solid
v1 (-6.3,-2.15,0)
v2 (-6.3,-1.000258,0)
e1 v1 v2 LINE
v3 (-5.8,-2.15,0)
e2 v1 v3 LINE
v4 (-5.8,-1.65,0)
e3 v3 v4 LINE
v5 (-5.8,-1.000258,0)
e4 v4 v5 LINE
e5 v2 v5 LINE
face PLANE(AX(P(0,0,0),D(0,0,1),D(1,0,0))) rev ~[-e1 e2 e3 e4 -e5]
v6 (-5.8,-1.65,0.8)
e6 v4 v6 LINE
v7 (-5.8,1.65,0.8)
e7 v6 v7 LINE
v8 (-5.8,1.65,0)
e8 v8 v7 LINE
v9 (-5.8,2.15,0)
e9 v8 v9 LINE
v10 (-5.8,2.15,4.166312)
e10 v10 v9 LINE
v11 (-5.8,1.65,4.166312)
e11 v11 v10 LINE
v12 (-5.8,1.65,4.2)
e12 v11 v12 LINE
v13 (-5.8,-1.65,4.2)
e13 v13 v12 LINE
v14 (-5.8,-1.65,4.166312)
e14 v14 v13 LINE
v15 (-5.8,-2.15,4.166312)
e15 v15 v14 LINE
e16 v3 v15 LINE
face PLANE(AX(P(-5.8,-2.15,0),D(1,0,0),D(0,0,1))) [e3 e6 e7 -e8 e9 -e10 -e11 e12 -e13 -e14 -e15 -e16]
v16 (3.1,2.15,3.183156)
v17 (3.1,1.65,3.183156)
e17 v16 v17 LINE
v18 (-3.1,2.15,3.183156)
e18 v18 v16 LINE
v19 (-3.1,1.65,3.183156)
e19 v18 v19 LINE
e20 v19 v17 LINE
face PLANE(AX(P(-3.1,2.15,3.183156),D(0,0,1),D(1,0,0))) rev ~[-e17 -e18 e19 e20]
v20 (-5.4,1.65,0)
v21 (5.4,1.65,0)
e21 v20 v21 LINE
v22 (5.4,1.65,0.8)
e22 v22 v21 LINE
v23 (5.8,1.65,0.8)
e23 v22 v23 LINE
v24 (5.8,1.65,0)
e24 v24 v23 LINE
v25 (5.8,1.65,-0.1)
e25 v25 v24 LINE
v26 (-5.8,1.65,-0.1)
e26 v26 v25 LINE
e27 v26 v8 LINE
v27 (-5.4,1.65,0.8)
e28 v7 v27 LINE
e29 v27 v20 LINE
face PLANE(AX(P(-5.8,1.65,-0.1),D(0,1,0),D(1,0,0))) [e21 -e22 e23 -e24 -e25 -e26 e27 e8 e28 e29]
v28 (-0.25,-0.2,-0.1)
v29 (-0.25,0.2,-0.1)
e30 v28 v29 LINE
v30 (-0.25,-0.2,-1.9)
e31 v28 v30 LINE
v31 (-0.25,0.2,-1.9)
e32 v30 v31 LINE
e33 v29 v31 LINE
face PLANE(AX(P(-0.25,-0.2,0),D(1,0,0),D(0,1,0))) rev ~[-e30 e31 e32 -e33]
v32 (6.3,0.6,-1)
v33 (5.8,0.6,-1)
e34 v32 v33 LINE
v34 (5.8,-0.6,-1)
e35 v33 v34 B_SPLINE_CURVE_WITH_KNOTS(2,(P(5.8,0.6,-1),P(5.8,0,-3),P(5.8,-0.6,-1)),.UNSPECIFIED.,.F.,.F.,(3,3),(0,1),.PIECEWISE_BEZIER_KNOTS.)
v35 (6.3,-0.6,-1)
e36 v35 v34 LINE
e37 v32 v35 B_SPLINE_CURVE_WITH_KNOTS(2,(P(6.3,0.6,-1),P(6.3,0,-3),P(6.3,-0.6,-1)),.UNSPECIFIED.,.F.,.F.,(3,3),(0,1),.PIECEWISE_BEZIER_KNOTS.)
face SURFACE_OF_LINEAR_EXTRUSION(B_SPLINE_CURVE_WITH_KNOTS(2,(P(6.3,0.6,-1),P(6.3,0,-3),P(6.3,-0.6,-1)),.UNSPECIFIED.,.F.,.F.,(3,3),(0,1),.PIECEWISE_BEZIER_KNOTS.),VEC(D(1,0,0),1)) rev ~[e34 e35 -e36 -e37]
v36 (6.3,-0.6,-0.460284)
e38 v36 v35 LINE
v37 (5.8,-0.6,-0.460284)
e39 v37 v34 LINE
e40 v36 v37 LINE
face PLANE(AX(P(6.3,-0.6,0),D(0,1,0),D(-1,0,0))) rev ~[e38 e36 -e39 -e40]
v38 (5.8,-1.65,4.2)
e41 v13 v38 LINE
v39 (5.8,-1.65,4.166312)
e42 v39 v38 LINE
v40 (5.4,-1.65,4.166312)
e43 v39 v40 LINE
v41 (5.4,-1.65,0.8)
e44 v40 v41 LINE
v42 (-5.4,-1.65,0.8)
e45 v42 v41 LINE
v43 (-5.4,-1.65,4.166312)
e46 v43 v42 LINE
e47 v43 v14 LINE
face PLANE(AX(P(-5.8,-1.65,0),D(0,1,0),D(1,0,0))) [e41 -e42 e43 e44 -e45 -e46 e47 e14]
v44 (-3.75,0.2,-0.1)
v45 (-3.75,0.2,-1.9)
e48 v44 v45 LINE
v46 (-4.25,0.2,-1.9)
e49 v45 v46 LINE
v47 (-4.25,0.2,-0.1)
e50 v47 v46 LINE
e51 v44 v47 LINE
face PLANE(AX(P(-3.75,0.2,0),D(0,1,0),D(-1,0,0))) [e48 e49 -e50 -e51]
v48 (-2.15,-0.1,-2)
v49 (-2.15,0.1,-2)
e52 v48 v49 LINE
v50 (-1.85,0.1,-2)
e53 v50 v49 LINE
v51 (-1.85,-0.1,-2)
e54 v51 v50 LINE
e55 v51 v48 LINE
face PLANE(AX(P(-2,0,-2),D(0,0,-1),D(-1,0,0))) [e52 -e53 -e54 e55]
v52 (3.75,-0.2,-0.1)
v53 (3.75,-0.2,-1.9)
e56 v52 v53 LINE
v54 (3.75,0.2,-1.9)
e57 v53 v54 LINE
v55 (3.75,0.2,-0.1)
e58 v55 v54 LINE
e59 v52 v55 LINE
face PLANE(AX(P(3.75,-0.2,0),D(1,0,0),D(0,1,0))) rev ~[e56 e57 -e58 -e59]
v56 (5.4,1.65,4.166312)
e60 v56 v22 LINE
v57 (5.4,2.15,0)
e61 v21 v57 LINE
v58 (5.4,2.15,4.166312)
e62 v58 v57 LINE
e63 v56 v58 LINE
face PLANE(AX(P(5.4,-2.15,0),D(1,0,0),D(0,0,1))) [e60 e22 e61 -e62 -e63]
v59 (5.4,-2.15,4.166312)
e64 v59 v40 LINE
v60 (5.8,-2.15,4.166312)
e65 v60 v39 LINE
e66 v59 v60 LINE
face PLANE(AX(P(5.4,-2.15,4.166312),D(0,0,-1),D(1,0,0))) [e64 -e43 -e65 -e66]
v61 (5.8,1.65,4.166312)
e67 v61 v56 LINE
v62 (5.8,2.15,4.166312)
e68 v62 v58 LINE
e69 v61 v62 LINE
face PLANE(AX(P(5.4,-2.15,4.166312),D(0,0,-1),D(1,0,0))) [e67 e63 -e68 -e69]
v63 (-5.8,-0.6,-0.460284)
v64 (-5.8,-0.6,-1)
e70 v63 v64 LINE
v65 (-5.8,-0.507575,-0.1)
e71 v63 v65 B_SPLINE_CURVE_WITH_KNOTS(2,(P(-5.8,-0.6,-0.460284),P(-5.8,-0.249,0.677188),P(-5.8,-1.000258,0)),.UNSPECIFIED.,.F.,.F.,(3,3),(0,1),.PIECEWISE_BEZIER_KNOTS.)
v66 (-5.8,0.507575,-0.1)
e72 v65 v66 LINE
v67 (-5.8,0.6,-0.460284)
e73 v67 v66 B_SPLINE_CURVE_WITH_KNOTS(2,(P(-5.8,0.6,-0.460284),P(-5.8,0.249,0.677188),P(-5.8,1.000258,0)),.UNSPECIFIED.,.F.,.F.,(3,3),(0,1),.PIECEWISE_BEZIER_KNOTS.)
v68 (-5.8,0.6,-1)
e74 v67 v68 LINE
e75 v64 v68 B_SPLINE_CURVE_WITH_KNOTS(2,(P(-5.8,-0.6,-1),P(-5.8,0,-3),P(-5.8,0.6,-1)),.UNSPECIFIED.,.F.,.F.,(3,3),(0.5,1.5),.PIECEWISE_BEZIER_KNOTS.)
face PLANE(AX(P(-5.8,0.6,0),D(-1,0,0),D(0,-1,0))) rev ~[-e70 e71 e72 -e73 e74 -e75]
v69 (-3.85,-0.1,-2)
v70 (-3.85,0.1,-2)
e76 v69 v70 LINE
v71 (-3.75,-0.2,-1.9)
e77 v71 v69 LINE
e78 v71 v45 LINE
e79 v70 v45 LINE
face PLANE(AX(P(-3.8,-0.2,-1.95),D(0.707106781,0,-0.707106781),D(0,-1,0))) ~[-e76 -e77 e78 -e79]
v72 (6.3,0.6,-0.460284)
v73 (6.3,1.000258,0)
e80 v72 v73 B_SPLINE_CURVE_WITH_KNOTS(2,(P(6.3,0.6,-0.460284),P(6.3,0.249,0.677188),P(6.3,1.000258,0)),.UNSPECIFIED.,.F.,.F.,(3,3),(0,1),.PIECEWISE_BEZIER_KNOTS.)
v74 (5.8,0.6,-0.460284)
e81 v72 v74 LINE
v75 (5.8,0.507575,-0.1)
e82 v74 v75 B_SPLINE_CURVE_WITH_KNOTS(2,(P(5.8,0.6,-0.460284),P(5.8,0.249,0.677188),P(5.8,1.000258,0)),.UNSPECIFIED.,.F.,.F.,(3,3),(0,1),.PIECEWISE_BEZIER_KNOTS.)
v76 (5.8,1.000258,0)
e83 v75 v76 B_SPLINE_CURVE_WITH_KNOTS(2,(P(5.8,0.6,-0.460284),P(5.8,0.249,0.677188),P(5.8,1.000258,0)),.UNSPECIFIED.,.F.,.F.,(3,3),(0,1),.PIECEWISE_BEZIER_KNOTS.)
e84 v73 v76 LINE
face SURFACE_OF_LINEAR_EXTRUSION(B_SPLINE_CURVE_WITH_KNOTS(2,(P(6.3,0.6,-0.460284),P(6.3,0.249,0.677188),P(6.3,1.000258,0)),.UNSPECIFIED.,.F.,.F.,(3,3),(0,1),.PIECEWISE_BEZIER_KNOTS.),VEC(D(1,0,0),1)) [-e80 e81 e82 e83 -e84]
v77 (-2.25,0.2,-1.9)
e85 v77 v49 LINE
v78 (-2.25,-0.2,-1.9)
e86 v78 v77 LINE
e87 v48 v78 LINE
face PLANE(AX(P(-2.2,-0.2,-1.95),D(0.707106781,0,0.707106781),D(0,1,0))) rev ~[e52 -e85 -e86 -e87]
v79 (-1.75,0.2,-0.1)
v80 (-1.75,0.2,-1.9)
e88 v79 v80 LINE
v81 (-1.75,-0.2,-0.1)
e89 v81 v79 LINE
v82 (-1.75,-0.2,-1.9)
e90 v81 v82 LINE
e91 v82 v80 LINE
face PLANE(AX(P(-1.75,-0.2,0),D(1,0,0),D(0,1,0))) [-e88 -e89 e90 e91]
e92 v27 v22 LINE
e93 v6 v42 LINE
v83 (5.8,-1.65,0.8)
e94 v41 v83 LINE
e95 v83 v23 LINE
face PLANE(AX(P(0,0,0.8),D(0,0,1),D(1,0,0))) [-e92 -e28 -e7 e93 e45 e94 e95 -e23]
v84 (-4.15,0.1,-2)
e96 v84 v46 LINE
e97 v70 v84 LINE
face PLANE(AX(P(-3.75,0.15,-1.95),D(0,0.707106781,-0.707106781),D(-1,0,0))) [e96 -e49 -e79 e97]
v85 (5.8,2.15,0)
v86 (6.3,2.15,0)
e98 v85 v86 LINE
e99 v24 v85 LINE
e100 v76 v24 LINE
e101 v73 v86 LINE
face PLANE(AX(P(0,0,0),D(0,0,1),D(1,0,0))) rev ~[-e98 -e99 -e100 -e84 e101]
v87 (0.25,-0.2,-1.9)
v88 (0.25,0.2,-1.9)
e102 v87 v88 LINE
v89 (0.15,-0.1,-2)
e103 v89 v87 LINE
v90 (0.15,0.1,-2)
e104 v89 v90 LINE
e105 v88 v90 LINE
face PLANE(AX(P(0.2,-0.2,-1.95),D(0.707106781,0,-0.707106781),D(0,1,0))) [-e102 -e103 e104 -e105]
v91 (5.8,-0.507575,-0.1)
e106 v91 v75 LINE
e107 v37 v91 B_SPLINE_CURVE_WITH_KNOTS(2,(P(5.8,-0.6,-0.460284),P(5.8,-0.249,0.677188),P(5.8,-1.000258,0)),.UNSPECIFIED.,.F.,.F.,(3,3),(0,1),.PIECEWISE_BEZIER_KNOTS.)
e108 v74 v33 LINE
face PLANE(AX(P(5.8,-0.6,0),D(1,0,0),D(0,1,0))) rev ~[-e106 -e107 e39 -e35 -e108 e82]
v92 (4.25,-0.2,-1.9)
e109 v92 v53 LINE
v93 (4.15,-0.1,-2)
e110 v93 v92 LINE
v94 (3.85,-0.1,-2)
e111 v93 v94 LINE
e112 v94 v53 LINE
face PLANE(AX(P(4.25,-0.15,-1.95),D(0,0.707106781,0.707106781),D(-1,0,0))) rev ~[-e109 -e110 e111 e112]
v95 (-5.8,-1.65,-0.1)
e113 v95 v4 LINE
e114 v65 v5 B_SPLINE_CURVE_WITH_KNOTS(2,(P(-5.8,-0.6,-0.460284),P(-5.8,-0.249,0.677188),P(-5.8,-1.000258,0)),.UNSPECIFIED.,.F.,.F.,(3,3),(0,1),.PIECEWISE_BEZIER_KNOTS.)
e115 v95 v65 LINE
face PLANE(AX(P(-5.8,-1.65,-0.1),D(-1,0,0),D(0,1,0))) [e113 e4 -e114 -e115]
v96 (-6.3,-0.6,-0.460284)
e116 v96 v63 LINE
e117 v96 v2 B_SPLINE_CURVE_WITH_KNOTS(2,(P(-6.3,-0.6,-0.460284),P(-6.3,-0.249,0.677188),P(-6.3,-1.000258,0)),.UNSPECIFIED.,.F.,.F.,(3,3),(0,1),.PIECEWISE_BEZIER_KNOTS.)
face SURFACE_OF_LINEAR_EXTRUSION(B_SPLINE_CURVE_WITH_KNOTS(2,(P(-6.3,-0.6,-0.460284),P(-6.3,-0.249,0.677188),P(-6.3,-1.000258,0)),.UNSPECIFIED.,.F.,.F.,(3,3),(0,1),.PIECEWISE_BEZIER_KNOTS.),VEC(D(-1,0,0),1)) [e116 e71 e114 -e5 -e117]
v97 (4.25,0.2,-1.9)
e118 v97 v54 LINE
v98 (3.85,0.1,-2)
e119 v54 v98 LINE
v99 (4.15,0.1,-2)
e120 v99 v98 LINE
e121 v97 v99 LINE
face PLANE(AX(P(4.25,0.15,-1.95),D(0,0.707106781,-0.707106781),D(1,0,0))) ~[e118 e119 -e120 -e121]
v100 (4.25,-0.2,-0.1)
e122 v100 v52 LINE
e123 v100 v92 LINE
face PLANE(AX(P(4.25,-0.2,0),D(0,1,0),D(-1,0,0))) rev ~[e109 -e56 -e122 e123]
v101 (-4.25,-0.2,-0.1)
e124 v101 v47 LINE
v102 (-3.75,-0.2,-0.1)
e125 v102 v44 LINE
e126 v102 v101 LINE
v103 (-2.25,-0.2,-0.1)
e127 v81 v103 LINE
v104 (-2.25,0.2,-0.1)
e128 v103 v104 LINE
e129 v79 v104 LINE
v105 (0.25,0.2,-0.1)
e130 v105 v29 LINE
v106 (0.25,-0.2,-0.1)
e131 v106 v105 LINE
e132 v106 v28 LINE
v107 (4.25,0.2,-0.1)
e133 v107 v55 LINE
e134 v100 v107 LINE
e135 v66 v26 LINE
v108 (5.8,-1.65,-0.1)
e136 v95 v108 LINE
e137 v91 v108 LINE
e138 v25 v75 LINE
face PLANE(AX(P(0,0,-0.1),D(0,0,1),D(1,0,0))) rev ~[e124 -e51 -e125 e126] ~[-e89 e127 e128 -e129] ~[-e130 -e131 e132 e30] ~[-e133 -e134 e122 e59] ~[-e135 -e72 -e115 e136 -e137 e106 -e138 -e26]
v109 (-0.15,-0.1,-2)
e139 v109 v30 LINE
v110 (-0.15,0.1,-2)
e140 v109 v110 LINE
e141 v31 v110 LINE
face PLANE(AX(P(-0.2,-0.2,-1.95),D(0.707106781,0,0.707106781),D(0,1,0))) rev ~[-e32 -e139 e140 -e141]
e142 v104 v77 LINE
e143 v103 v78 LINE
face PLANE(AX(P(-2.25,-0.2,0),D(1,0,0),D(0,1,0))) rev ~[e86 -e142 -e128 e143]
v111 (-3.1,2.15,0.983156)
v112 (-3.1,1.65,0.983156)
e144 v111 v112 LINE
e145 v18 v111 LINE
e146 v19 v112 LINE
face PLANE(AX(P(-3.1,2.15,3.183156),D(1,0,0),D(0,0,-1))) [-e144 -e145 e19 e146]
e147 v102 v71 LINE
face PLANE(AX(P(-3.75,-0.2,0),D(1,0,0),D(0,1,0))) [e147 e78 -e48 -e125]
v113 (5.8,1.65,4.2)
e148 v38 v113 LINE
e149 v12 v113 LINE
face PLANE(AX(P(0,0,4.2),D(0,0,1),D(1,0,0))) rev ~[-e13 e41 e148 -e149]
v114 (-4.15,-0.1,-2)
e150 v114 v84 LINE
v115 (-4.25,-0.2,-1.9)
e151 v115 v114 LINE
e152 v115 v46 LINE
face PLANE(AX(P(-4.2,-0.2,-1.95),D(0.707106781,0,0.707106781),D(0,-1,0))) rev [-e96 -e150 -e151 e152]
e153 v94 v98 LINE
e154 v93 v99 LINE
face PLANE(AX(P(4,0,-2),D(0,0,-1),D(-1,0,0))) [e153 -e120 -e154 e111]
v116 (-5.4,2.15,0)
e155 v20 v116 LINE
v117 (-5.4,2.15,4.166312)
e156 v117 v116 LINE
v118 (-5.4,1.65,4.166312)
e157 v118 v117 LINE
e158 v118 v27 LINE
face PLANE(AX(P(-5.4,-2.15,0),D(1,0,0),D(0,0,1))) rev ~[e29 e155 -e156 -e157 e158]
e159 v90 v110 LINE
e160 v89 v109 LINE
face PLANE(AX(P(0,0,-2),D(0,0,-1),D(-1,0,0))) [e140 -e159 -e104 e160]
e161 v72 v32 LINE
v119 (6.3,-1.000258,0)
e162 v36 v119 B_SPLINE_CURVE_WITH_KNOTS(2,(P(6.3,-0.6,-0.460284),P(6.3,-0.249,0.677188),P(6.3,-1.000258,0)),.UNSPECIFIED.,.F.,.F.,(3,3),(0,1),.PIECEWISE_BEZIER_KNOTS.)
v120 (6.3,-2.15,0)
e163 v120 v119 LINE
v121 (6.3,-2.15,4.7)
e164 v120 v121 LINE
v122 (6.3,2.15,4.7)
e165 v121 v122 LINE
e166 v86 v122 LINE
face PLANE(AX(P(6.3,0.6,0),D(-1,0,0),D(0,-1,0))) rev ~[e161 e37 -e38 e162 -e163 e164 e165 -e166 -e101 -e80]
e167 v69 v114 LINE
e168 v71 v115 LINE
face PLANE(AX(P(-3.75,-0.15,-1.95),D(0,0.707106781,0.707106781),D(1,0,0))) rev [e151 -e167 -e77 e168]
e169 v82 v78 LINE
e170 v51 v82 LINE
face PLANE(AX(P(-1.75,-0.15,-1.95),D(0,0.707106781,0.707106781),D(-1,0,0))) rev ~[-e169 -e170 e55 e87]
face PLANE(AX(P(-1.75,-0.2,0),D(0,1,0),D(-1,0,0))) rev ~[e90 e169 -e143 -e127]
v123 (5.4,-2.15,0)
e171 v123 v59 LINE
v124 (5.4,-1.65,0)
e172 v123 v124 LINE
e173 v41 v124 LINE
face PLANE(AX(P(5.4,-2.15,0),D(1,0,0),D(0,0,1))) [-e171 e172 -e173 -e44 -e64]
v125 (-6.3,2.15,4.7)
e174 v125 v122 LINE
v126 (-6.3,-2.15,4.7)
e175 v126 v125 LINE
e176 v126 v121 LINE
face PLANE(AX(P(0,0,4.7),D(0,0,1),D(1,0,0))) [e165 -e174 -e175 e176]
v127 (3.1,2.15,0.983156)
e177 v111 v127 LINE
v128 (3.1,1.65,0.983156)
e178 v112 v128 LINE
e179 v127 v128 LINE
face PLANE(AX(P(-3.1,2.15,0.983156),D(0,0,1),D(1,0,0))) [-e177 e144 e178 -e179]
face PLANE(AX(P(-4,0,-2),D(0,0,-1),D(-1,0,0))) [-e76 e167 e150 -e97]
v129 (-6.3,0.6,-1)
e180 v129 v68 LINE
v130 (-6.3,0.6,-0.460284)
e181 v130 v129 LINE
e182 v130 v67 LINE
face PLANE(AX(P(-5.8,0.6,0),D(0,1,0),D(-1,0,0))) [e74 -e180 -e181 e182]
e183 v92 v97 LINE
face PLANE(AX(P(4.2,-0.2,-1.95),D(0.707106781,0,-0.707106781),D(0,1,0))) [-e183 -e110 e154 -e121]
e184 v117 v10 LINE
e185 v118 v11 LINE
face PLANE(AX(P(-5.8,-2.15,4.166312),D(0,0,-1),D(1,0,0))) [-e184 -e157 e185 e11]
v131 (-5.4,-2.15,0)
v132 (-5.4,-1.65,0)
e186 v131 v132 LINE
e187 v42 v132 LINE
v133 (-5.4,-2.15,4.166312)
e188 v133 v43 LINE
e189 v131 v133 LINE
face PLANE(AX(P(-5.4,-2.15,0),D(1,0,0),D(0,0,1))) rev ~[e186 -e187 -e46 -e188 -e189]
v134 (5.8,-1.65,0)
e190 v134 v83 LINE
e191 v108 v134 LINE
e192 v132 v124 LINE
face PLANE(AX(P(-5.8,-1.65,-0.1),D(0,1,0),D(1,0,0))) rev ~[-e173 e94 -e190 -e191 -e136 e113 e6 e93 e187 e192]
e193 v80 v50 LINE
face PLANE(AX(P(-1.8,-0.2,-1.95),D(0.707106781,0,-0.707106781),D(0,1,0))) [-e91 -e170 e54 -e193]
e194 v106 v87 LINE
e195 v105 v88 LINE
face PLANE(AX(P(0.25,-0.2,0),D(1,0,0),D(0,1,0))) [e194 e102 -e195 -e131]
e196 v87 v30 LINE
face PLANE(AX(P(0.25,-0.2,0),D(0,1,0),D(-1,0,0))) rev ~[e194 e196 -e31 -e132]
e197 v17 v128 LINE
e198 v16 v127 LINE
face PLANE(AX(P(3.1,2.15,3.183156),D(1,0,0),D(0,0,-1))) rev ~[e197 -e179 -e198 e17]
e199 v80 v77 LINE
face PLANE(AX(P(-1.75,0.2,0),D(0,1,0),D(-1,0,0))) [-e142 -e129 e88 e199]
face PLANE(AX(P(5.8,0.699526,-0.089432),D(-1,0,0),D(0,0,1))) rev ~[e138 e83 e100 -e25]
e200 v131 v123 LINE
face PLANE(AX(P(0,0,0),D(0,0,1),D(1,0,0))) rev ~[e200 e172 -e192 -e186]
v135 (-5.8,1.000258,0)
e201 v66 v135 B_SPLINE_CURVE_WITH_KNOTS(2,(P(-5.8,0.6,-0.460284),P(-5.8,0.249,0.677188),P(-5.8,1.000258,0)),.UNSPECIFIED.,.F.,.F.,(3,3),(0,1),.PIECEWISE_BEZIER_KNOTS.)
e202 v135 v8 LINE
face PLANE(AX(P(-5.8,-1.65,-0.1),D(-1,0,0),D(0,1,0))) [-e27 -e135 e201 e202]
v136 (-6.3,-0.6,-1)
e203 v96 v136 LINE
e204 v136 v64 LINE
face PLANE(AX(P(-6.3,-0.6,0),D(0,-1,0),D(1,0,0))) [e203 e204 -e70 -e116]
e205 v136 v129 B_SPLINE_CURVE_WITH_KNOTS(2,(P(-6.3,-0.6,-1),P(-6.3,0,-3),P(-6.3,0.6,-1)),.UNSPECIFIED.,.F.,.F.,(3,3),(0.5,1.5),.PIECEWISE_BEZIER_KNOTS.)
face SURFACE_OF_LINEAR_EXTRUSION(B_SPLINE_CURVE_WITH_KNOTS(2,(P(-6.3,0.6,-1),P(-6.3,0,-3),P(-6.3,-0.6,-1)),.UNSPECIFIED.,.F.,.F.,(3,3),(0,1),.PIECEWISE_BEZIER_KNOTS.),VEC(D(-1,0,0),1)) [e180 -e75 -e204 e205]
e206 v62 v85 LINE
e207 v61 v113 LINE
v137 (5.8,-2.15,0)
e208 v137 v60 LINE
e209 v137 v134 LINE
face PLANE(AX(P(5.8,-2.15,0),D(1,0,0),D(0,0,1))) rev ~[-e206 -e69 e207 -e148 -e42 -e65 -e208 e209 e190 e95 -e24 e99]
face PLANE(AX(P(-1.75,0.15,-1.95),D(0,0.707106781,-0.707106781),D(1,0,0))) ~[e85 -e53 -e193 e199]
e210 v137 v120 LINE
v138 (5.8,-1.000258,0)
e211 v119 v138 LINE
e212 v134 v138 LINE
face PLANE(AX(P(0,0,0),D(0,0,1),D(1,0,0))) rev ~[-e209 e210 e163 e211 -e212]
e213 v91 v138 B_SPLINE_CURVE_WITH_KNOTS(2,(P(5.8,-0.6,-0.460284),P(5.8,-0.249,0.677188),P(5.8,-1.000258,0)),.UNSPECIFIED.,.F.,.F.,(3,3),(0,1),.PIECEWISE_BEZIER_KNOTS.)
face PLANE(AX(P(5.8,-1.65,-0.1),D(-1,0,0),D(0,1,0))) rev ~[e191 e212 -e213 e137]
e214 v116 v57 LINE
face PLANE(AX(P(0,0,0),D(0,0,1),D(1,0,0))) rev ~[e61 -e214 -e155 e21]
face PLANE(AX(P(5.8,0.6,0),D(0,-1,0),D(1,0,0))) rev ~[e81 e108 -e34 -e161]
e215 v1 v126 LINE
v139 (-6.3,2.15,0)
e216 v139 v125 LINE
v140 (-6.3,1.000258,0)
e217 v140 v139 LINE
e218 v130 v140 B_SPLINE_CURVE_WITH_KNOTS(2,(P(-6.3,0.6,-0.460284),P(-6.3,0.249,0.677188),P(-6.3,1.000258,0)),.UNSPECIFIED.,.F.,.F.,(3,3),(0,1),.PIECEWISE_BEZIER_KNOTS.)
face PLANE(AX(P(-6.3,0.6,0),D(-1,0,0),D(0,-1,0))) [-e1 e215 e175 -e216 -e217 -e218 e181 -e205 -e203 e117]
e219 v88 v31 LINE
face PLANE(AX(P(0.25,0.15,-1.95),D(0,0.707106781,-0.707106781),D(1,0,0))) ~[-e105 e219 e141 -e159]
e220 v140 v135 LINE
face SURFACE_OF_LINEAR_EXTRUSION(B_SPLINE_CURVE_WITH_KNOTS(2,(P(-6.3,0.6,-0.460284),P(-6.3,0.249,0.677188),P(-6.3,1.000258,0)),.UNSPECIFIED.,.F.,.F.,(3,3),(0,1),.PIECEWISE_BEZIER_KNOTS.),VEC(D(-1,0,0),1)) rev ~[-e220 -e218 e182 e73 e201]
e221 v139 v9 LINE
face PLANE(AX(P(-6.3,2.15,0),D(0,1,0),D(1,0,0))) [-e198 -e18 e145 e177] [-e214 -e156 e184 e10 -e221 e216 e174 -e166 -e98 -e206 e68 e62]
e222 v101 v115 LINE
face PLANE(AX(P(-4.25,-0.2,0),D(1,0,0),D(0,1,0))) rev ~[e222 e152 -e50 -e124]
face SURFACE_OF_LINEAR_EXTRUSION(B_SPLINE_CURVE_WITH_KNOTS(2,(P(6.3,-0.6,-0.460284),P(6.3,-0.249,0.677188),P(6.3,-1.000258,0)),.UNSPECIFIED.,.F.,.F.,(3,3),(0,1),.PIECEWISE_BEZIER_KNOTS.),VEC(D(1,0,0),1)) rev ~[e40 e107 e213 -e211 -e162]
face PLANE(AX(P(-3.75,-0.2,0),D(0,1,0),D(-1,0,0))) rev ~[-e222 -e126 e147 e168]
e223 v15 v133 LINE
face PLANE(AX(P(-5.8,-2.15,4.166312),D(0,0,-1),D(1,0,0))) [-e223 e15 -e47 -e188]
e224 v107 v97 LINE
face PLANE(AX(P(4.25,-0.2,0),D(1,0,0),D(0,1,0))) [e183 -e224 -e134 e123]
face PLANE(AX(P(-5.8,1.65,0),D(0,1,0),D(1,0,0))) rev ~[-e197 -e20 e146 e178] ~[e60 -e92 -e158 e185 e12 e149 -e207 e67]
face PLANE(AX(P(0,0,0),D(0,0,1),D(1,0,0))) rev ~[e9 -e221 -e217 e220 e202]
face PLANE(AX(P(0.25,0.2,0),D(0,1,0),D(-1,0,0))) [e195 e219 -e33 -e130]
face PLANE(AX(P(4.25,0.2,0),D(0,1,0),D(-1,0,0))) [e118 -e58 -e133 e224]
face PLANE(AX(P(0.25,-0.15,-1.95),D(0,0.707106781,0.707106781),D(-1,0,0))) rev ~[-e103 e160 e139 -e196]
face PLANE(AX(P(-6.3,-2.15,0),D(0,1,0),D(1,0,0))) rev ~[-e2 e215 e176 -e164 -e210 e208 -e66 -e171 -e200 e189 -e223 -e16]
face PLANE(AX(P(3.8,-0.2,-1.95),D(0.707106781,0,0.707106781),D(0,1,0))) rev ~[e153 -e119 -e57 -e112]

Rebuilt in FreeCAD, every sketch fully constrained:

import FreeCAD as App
import Part
import Sketcher

V = App.Vector
Q = App.Units.Quantity


def edges_at(feature, points):
    """Names of the edges that pass closest to the given points."""
    edges = feature.Shape.Edges
    near = lambda p: min(range(len(edges)), key=lambda i: edges[i].distToShape(Part.Vertex(*p))[0])
    return sorted({f"Edge{near(p) + 1}" for p in points})

doc = App.newDocument("Part")
body = doc.addObject("PartDesign::Body", "Body")

# Sketch on XY plane
sketch1 = body.newObject("Sketcher::SketchObject", "Sketch")
sketch1.AttachmentSupport = (doc.getObject("XY_Plane"), [""])
sketch1.MapMode = "FlatFace"
sketch1.addGeometry(Part.LineSegment(V(-6.3, 2.1, 0), V(-6.3, -2.1, 0)), False)
sketch1.addGeometry(Part.LineSegment(V(-6.3, -2.1, 0), V(6.3, -2.1, 0)), False)
sketch1.addGeometry(Part.LineSegment(V(6.3, -2.1, 0), V(6.3, 2.1, 0)), False)
sketch1.addGeometry(Part.LineSegment(V(6.3, 2.1, 0), V(-6.3, 2.1, 0)), False)
sketch1.addGeometry(Part.LineSegment(V(5.8, -1.6, 0), V(-5.8, -1.6, 0)), False)
sketch1.addGeometry(Part.LineSegment(V(-5.8, -1.6, 0), V(-5.8, 1.6, 0)), False)
sketch1.addGeometry(Part.LineSegment(V(-5.8, 1.6, 0), V(5.8, 1.6, 0)), False)
sketch1.addGeometry(Part.LineSegment(V(5.8, 1.6, 0), V(5.8, -1.6, 0)), False)
sketch1.addConstraint(Sketcher.Constraint("Coincident", 0, 2, 1, 1))
sketch1.addConstraint(Sketcher.Constraint("Coincident", 1, 2, 2, 1))
sketch1.addConstraint(Sketcher.Constraint("Coincident", 2, 2, 3, 1))
sketch1.addConstraint(Sketcher.Constraint("Coincident", 3, 2, 0, 1))
sketch1.addConstraint(Sketcher.Constraint("Coincident", 4, 2, 5, 1))
sketch1.addConstraint(Sketcher.Constraint("Coincident", 5, 2, 6, 1))
sketch1.addConstraint(Sketcher.Constraint("Coincident", 6, 2, 7, 1))
sketch1.addConstraint(Sketcher.Constraint("Coincident", 7, 2, 4, 1))
sketch1.addConstraint(Sketcher.Constraint("Vertical", 0))
sketch1.addConstraint(Sketcher.Constraint("Horizontal", 1))
sketch1.addConstraint(Sketcher.Constraint("Vertical", 2))
sketch1.addConstraint(Sketcher.Constraint("Horizontal", 3))
sketch1.addConstraint(Sketcher.Constraint("Horizontal", 4))
sketch1.addConstraint(Sketcher.Constraint("Vertical", 5))
sketch1.addConstraint(Sketcher.Constraint("Horizontal", 6))
sketch1.addConstraint(Sketcher.Constraint("Vertical", 7))
sketch1.addConstraint(Sketcher.Constraint("Symmetric", 0, 2, 2, 2, -1, 1))
sketch1.addConstraint(Sketcher.Constraint("Symmetric", 4, 2, 6, 2, -1, 1))
sketch1.addConstraint(Sketcher.Constraint("DistanceX", 1, 1, 1, 2, Q("12.6 mm")))
sketch1.addConstraint(Sketcher.Constraint("DistanceX", 4, 2, 4, 1, Q("11.6 mm")))
sketch1.addConstraint(Sketcher.Constraint("DistanceY", 0, 2, 0, 1, Q("4.3 mm")))
sketch1.addConstraint(Sketcher.Constraint("DistanceY", 5, 1, 5, 2, Q("3.3 mm")))
pad1 = body.newObject("PartDesign::Pad", "Pad")
pad1.Profile = sketch1
pad1.Length = 4.7

# Sketch on XY plane
sketch2 = body.newObject("Sketcher::SketchObject", "Sketch001")
sketch2.AttachmentSupport = (doc.getObject("XY_Plane"), [""])
sketch2.MapMode = "FlatFace"
sketch2.AttachmentOffset = App.Placement(V(0, 0, 4.7), App.Rotation())
sketch2.addGeometry(Part.LineSegment(V(-5.8, 1.6, 0), V(-5.8, -1.6, 0)), False)
sketch2.addGeometry(Part.LineSegment(V(-5.8, -1.6, 0), V(5.8, -1.6, 0)), False)
sketch2.addGeometry(Part.LineSegment(V(5.8, -1.6, 0), V(5.8, 1.6, 0)), False)
sketch2.addGeometry(Part.LineSegment(V(5.8, 1.6, 0), V(-5.8, 1.6, 0)), False)
sketch2.addConstraint(Sketcher.Constraint("Coincident", 0, 2, 1, 1))
sketch2.addConstraint(Sketcher.Constraint("Coincident", 1, 2, 2, 1))
sketch2.addConstraint(Sketcher.Constraint("Coincident", 2, 2, 3, 1))
sketch2.addConstraint(Sketcher.Constraint("Coincident", 3, 2, 0, 1))
sketch2.addConstraint(Sketcher.Constraint("Vertical", 0))
sketch2.addConstraint(Sketcher.Constraint("Horizontal", 1))
sketch2.addConstraint(Sketcher.Constraint("Vertical", 2))
sketch2.addConstraint(Sketcher.Constraint("Horizontal", 3))
sketch2.addConstraint(Sketcher.Constraint("Symmetric", 0, 2, 2, 2, -1, 1))
sketch2.addConstraint(Sketcher.Constraint("DistanceX", 1, 1, 1, 2, Q("11.6 mm")))
sketch2.addConstraint(Sketcher.Constraint("DistanceY", 0, 2, 0, 1, Q("3.3 mm")))
pad2 = body.newObject("PartDesign::Pad", "Pad001")
pad2.Profile = sketch2
pad2.Length = 0.5
pad2.Reversed = True

# Sketch on XZ plane
sketch3 = body.newObject("Sketcher::SketchObject", "Sketch002")
sketch3.AttachmentSupport = (doc.getObject("XZ_Plane"), [""])
sketch3.MapMode = "FlatFace"
sketch3.AttachmentOffset = App.Placement(V(0, 0, 2.15), App.Rotation())
sketch3.addGeometry(Part.LineSegment(V(-5.8, 4.17, 0), V(-5.8, 0, 0)), False)
sketch3.addGeometry(Part.LineSegment(V(-5.8, 0, 0), V(-5.4, 0, 0)), False)
sketch3.addGeometry(Part.LineSegment(V(-5.4, 0, 0), V(-5.4, 4.17, 0)), False)
sketch3.addGeometry(Part.LineSegment(V(-5.4, 4.17, 0), V(-5.8, 4.17, 0)), False)
sketch3.addGeometry(Part.LineSegment(V(5.4, 4.17, 0), V(5.4, 0, 0)), False)
sketch3.addGeometry(Part.LineSegment(V(5.4, 0, 0), V(5.8, 0, 0)), False)
sketch3.addGeometry(Part.LineSegment(V(5.8, 0, 0), V(5.8, 4.17, 0)), False)
sketch3.addGeometry(Part.LineSegment(V(5.8, 4.17, 0), V(5.4, 4.17, 0)), False)
sketch3.addConstraint(Sketcher.Constraint("Coincident", 0, 2, 1, 1))
sketch3.addConstraint(Sketcher.Constraint("Coincident", 1, 2, 2, 1))
sketch3.addConstraint(Sketcher.Constraint("Coincident", 2, 2, 3, 1))
sketch3.addConstraint(Sketcher.Constraint("Coincident", 3, 2, 0, 1))
sketch3.addConstraint(Sketcher.Constraint("Coincident", 4, 2, 5, 1))
sketch3.addConstraint(Sketcher.Constraint("Coincident", 5, 2, 6, 1))
sketch3.addConstraint(Sketcher.Constraint("Coincident", 6, 2, 7, 1))
sketch3.addConstraint(Sketcher.Constraint("Coincident", 7, 2, 4, 1))
sketch3.addConstraint(Sketcher.Constraint("Vertical", 0))
sketch3.addConstraint(Sketcher.Constraint("Horizontal", 1))
sketch3.addConstraint(Sketcher.Constraint("Vertical", 2))
sketch3.addConstraint(Sketcher.Constraint("Horizontal", 3))
sketch3.addConstraint(Sketcher.Constraint("Vertical", 4))
sketch3.addConstraint(Sketcher.Constraint("Horizontal", 5))
sketch3.addConstraint(Sketcher.Constraint("Vertical", 6))
sketch3.addConstraint(Sketcher.Constraint("Horizontal", 7))
sketch3.addConstraint(Sketcher.Constraint("Symmetric", 1, 2, 4, 2, -1, 1))
sketch3.addConstraint(Sketcher.Constraint("Symmetric", 0, 2, 5, 2, -2))
sketch3.addConstraint(Sketcher.Constraint("Horizontal", 3, 2, 6, 2))
sketch3.addConstraint(Sketcher.Constraint("DistanceX", 1, 1, 1, 2, Q("0.4 mm")))
sketch3.addConstraint(Sketcher.Constraint("DistanceX", 0, 2, -1, 1, Q("5.8 mm")))
sketch3.addConstraint(Sketcher.Constraint("DistanceY", 0, 2, 0, 1, Q("4.166312 mm")))
pocket1 = body.newObject("PartDesign::Pocket", "Pocket")
pocket1.Profile = sketch3
pocket1.Type = "ThroughAll"
body2 = doc.addObject("PartDesign::Body", "Body001")

# Sketch on XY plane
sketch4 = body2.newObject("Sketcher::SketchObject", "Sketch003")
sketch4.AttachmentSupport = (doc.getObject("XY_Plane001"), [""])
sketch4.MapMode = "FlatFace"
sketch4.addGeometry(Part.LineSegment(V(-5.8, 1.6, 0), V(-5.8, -1.6, 0)), False)
sketch4.addGeometry(Part.LineSegment(V(-5.8, -1.6, 0), V(5.8, -1.6, 0)), False)
sketch4.addGeometry(Part.LineSegment(V(5.8, -1.6, 0), V(5.8, 1.6, 0)), False)
sketch4.addGeometry(Part.LineSegment(V(5.8, 1.6, 0), V(-5.8, 1.6, 0)), False)
sketch4.addConstraint(Sketcher.Constraint("Coincident", 0, 2, 1, 1))
sketch4.addConstraint(Sketcher.Constraint("Coincident", 1, 2, 2, 1))
sketch4.addConstraint(Sketcher.Constraint("Coincident", 2, 2, 3, 1))
sketch4.addConstraint(Sketcher.Constraint("Coincident", 3, 2, 0, 1))
sketch4.addConstraint(Sketcher.Constraint("Vertical", 0))
sketch4.addConstraint(Sketcher.Constraint("Horizontal", 1))
sketch4.addConstraint(Sketcher.Constraint("Vertical", 2))
sketch4.addConstraint(Sketcher.Constraint("Horizontal", 3))
sketch4.addConstraint(Sketcher.Constraint("Symmetric", 0, 2, 2, 2, -1, 1))
sketch4.addConstraint(Sketcher.Constraint("DistanceX", 1, 1, 1, 2, Q("11.6 mm")))
sketch4.addConstraint(Sketcher.Constraint("DistanceY", 0, 2, 0, 1, Q("3.3 mm")))
pad3 = body2.newObject("PartDesign::Pad", "Pad002")
pad3.Profile = sketch4
pad3.Type = "TwoLengths"
pad3.Length = 0.8
pad3.Length2 = 0.1
doc.recompute()

boolean = body.newObject("PartDesign::Boolean", "Boolean")
boolean.Type = "Fuse"
boolean.addObjects([body2])

# Sketch on XY plane
sketch5 = body.newObject("Sketcher::SketchObject", "Sketch004")
sketch5.AttachmentSupport = (doc.getObject("XY_Plane"), [""])
sketch5.MapMode = "FlatFace"
sketch5.addGeometry(Part.LineSegment(V(-3.75, 0.2, 0), V(-3.75, -0.2, 0)), False)
sketch5.addGeometry(Part.LineSegment(V(-3.75, -0.2, 0), V(-4.25, -0.2, 0)), False)
sketch5.addGeometry(Part.LineSegment(V(-4.25, -0.2, 0), V(-4.25, 0.2, 0)), False)
sketch5.addGeometry(Part.LineSegment(V(-4.25, 0.2, 0), V(-3.75, 0.2, 0)), False)
sketch5.addGeometry(Part.LineSegment(V(-1.75, 0.2, 0), V(-1.75, -0.2, 0)), False)
sketch5.addGeometry(Part.LineSegment(V(-1.75, -0.2, 0), V(-2.25, -0.2, 0)), False)
sketch5.addGeometry(Part.LineSegment(V(-2.25, -0.2, 0), V(-2.25, 0.2, 0)), False)
sketch5.addGeometry(Part.LineSegment(V(-2.25, 0.2, 0), V(-1.75, 0.2, 0)), False)
sketch5.addGeometry(Part.LineSegment(V(0.25, 0.2, 0), V(0.25, -0.2, 0)), False)
sketch5.addGeometry(Part.LineSegment(V(0.25, -0.2, 0), V(-0.25, -0.2, 0)), False)
sketch5.addGeometry(Part.LineSegment(V(-0.25, -0.2, 0), V(-0.25, 0.2, 0)), False)
sketch5.addGeometry(Part.LineSegment(V(-0.25, 0.2, 0), V(0.25, 0.2, 0)), False)
sketch5.addGeometry(Part.LineSegment(V(4.25, 0.2, 0), V(4.25, -0.2, 0)), False)
sketch5.addGeometry(Part.LineSegment(V(4.25, -0.2, 0), V(3.75, -0.2, 0)), False)
sketch5.addGeometry(Part.LineSegment(V(3.75, -0.2, 0), V(3.75, 0.2, 0)), False)
sketch5.addGeometry(Part.LineSegment(V(3.75, 0.2, 0), V(4.25, 0.2, 0)), False)
sketch5.addGeometry(Part.LineSegment(V(5.8, 0.6, 0), V(6.3, 0.6, 0)), False)
sketch5.addGeometry(Part.LineSegment(V(6.3, 0.6, 0), V(6.3, -0.6, 0)), False)
sketch5.addGeometry(Part.LineSegment(V(6.3, -0.6, 0), V(5.8, -0.6, 0)), False)
sketch5.addGeometry(Part.LineSegment(V(5.8, -0.6, 0), V(5.8, 0.6, 0)), False)
sketch5.addGeometry(Part.LineSegment(V(-5.8, 0.6, 0), V(-5.8, -0.6, 0)), False)
sketch5.addGeometry(Part.LineSegment(V(-5.8, -0.6, 0), V(-6.3, -0.6, 0)), False)
sketch5.addGeometry(Part.LineSegment(V(-6.3, -0.6, 0), V(-6.3, 0.6, 0)), False)
sketch5.addGeometry(Part.LineSegment(V(-6.3, 0.6, 0), V(-5.8, 0.6, 0)), False)
sketch5.addConstraint(Sketcher.Constraint("Coincident", 0, 2, 1, 1))
sketch5.addConstraint(Sketcher.Constraint("Coincident", 1, 2, 2, 1))
sketch5.addConstraint(Sketcher.Constraint("Coincident", 2, 2, 3, 1))
sketch5.addConstraint(Sketcher.Constraint("Coincident", 3, 2, 0, 1))
sketch5.addConstraint(Sketcher.Constraint("Coincident", 4, 2, 5, 1))
sketch5.addConstraint(Sketcher.Constraint("Coincident", 5, 2, 6, 1))
sketch5.addConstraint(Sketcher.Constraint("Coincident", 6, 2, 7, 1))
sketch5.addConstraint(Sketcher.Constraint("Coincident", 7, 2, 4, 1))
sketch5.addConstraint(Sketcher.Constraint("Coincident", 8, 2, 9, 1))
sketch5.addConstraint(Sketcher.Constraint("Coincident", 9, 2, 10, 1))
sketch5.addConstraint(Sketcher.Constraint("Coincident", 10, 2, 11, 1))
sketch5.addConstraint(Sketcher.Constraint("Coincident", 11, 2, 8, 1))
sketch5.addConstraint(Sketcher.Constraint("Coincident", 12, 2, 13, 1))
sketch5.addConstraint(Sketcher.Constraint("Coincident", 13, 2, 14, 1))
sketch5.addConstraint(Sketcher.Constraint("Coincident", 14, 2, 15, 1))
sketch5.addConstraint(Sketcher.Constraint("Coincident", 15, 2, 12, 1))
sketch5.addConstraint(Sketcher.Constraint("Coincident", 16, 2, 17, 1))
sketch5.addConstraint(Sketcher.Constraint("Coincident", 17, 2, 18, 1))
sketch5.addConstraint(Sketcher.Constraint("Coincident", 18, 2, 19, 1))
sketch5.addConstraint(Sketcher.Constraint("Coincident", 19, 2, 16, 1))
sketch5.addConstraint(Sketcher.Constraint("Coincident", 20, 2, 21, 1))
sketch5.addConstraint(Sketcher.Constraint("Coincident", 21, 2, 22, 1))
sketch5.addConstraint(Sketcher.Constraint("Coincident", 22, 2, 23, 1))
sketch5.addConstraint(Sketcher.Constraint("Coincident", 23, 2, 20, 1))
sketch5.addConstraint(Sketcher.Constraint("Vertical", 0))
sketch5.addConstraint(Sketcher.Constraint("Horizontal", 1))
sketch5.addConstraint(Sketcher.Constraint("Vertical", 2))
sketch5.addConstraint(Sketcher.Constraint("Horizontal", 3))
sketch5.addConstraint(Sketcher.Constraint("Vertical", 4))
sketch5.addConstraint(Sketcher.Constraint("Horizontal", 5))
sketch5.addConstraint(Sketcher.Constraint("Vertical", 6))
sketch5.addConstraint(Sketcher.Constraint("Horizontal", 7))
sketch5.addConstraint(Sketcher.Constraint("Vertical", 8))
sketch5.addConstraint(Sketcher.Constraint("Horizontal", 9))
sketch5.addConstraint(Sketcher.Constraint("Vertical", 10))
sketch5.addConstraint(Sketcher.Constraint("Horizontal", 11))
sketch5.addConstraint(Sketcher.Constraint("Vertical", 12))
sketch5.addConstraint(Sketcher.Constraint("Horizontal", 13))
sketch5.addConstraint(Sketcher.Constraint("Vertical", 14))
sketch5.addConstraint(Sketcher.Constraint("Horizontal", 15))
sketch5.addConstraint(Sketcher.Constraint("Horizontal", 16))
sketch5.addConstraint(Sketcher.Constraint("Vertical", 17))
sketch5.addConstraint(Sketcher.Constraint("Horizontal", 18))
sketch5.addConstraint(Sketcher.Constraint("Vertical", 19))
sketch5.addConstraint(Sketcher.Constraint("Vertical", 20))
sketch5.addConstraint(Sketcher.Constraint("Horizontal", 21))
sketch5.addConstraint(Sketcher.Constraint("Vertical", 22))
sketch5.addConstraint(Sketcher.Constraint("Horizontal", 23))
sketch5.addConstraint(Sketcher.Constraint("Symmetric", 8, 2, 10, 2, -1, 1))
sketch5.addConstraint(Sketcher.Constraint("Symmetric", 2, 2, 12, 2, -1, 1))
sketch5.addConstraint(Sketcher.Constraint("Symmetric", 0, 2, 14, 2, -1, 1))
sketch5.addConstraint(Sketcher.Constraint("Symmetric", 19, 2, 20, 2, -1, 1))
sketch5.addConstraint(Sketcher.Constraint("Symmetric", 17, 2, 22, 2, -1, 1))
sketch5.addConstraint(Sketcher.Constraint("Horizontal", 1, 2, 4, 2))
sketch5.addConstraint(Sketcher.Constraint("Horizontal", 3, 2, 6, 2))
sketch5.addConstraint(Sketcher.Constraint("Horizontal", 5, 2, 8, 2))
sketch5.addConstraint(Sketcher.Constraint("Horizontal", 7, 2, 10, 2))
sketch5.addConstraint(Sketcher.Constraint("Horizontal", 18, 2, 20, 2))
sketch5.addConstraint(Sketcher.Constraint("Equal", 3, 5))
sketch5.addConstraint(Sketcher.Constraint("Equal", 7, 9))
sketch5.addConstraint(Sketcher.Constraint("Equal", 15, 16))
sketch5.addConstraint(Sketcher.Constraint("DistanceX", 1, 2, 1, 1, Q("0.5 mm")))
sketch5.addConstraint(Sketcher.Constraint("DistanceY", 0, 2, 0, 1, Q("0.4 mm")))
sketch5.addConstraint(Sketcher.Constraint("DistanceY", 17, 2, 17, 1, Q("1.2 mm")))
sketch5.addConstraint(Sketcher.Constraint("DistanceX", 0, 2, 4, 2, Q("2 mm")))
sketch5.addConstraint(Sketcher.Constraint("DistanceX", 4, 2, 8, 2, Q("2 mm")))
sketch5.addConstraint(Sketcher.Constraint("DistanceX", -1, 1, 16, 2, Q("6.3 mm")))
pad4 = body.newObject("PartDesign::Pad", "Pad003")
pad4.Profile = sketch5
pad4.Length = 2
pad4.Reversed = True

# Sketch on XZ plane
sketch6 = body.newObject("Sketcher::SketchObject", "Sketch005")
sketch6.AttachmentSupport = (doc.getObject("XZ_Plane"), [""])
sketch6.MapMode = "FlatFace"
sketch6.AttachmentOffset = App.Placement(V(0, 0, -2.15), App.Rotation())
sketch6.addGeometry(Part.LineSegment(V(-3.1, 1, 0), V(-3.1, 3.2, 0)), False)
sketch6.addGeometry(Part.LineSegment(V(-3.1, 3.2, 0), V(3.1, 3.2, 0)), False)
sketch6.addGeometry(Part.LineSegment(V(3.1, 3.2, 0), V(3.1, 1, 0)), False)
sketch6.addGeometry(Part.LineSegment(V(3.1, 1, 0), V(-3.1, 1, 0)), False)
sketch6.addConstraint(Sketcher.Constraint("Coincident", 0, 2, 1, 1))
sketch6.addConstraint(Sketcher.Constraint("Coincident", 1, 2, 2, 1))
sketch6.addConstraint(Sketcher.Constraint("Coincident", 2, 2, 3, 1))
sketch6.addConstraint(Sketcher.Constraint("Coincident", 3, 2, 0, 1))
sketch6.addConstraint(Sketcher.Constraint("Vertical", 0))
sketch6.addConstraint(Sketcher.Constraint("Horizontal", 1))
sketch6.addConstraint(Sketcher.Constraint("Vertical", 2))
sketch6.addConstraint(Sketcher.Constraint("Horizontal", 3))
sketch6.addConstraint(Sketcher.Constraint("DistanceX", 1, 1, 1, 2, Q("6.2 mm")))
sketch6.addConstraint(Sketcher.Constraint("DistanceY", 0, 1, 0, 2, Q("2.2 mm")))
sketch6.addConstraint(Sketcher.Constraint("DistanceX", 0, 2, -1, 1, Q("3.1 mm")))
sketch6.addConstraint(Sketcher.Constraint("DistanceY", -1, 1, 0, 2, Q("3.183156 mm")))
pocket2 = body.newObject("PartDesign::Pocket", "Pocket001")
pocket2.Profile = sketch6
pocket2.Length = 0.5
pocket2.Reversed = True

# Sketch on YZ plane
sketch7 = body.newObject("Sketcher::SketchObject", "Sketch006")
sketch7.AttachmentSupport = (doc.getObject("YZ_Plane"), [""])
sketch7.MapMode = "FlatFace"
sketch7.AttachmentOffset = App.Placement(V(0, 0, 6.3), App.Rotation())
sketch7.addGeometry(Part.LineSegment(V(0.6, -0.460284, 0), V(1.000258, 0, 0)), False)
sketch7.addGeometry(Part.BSplineCurve([V(0.6, -0.460284, 0), V(0.249, 0.677188, 0), V(1.000258, 0, 0)], [3, 3], [0, 1], False, 2, [1, 1, 1], False), False)
sketch7.addGeometry(Part.LineSegment(V(-1.000258, 0, 0), V(-0.6, -0.460284, 0)), False)
sketch7.addGeometry(Part.BSplineCurve([V(-0.6, -0.460284, 0), V(-0.249, 0.677188, 0), V(-1.000258, 0, 0)], [3, 3], [0, 1], False, 2, [1, 1, 1], False), False)
sketch7.addGeometry(Part.LineSegment(V(0.6, -4.247892, 0), V(0.6, -1, 0)), False)
sketch7.addGeometry(Part.BSplineCurve([V(0.6, -1, 0), V(0, -3, 0), V(-0.6, -1, 0)], [3, 3], [0, 1], False, 2, [1, 1, 1], False), False)
sketch7.addGeometry(Part.LineSegment(V(-0.6, -1, 0), V(-0.6, -4.247892, 0)), False)
sketch7.addGeometry(Part.LineSegment(V(-0.6, -4.247892, 0), V(0.6, -4.247892, 0)), False)
sketch7.addConstraint(Sketcher.Constraint("Block", 1))
sketch7.addConstraint(Sketcher.Constraint("Block", 3))
sketch7.addConstraint(Sketcher.Constraint("Block", 5))
sketch7.addConstraint(Sketcher.Constraint("Coincident", 0, 1, 1, 1))
sketch7.addConstraint(Sketcher.Constraint("Coincident", 1, 2, 0, 2))
sketch7.addConstraint(Sketcher.Constraint("Coincident", 2, 1, 3, 2))
sketch7.addConstraint(Sketcher.Constraint("Coincident", 3, 1, 2, 2))
sketch7.addConstraint(Sketcher.Constraint("Coincident", 4, 2, 5, 1))
sketch7.addConstraint(Sketcher.Constraint("Coincident", 5, 2, 6, 1))
sketch7.addConstraint(Sketcher.Constraint("Coincident", 6, 2, 7, 1))
sketch7.addConstraint(Sketcher.Constraint("Coincident", 7, 2, 4, 1))
sketch7.addConstraint(Sketcher.Constraint("Vertical", 4))
sketch7.addConstraint(Sketcher.Constraint("Vertical", 6))
sketch7.addConstraint(Sketcher.Constraint("Horizontal", 7))
sketch7.addConstraint(Sketcher.Constraint("DistanceY", 4, 1, 4, 2, Q("3.247892 mm")))
pocket3 = body.newObject("PartDesign::Pocket", "Pocket002")
pocket3.Profile = sketch7
pocket3.Length = 0.5

# Sketch on YZ plane
sketch8 = body.newObject("Sketcher::SketchObject", "Sketch007")
sketch8.AttachmentSupport = (doc.getObject("YZ_Plane"), [""])
sketch8.MapMode = "FlatFace"
sketch8.AttachmentOffset = App.Placement(V(0, 0, -6.3), App.Rotation())
sketch8.addGeometry(Part.LineSegment(V(0.6, -0.460284, 0), V(1.000258, 0, 0)), False)
sketch8.addGeometry(Part.BSplineCurve([V(0.6, -0.460284, 0), V(0.249, 0.677188, 0), V(1.000258, 0, 0)], [3, 3], [0, 1], False, 2, [1, 1, 1], False), False)
sketch8.addGeometry(Part.LineSegment(V(-1.000258, 0, 0), V(-0.6, -0.460284, 0)), False)
sketch8.addGeometry(Part.BSplineCurve([V(-0.6, -0.460284, 0), V(-0.249, 0.677188, 0), V(-1.000258, 0, 0)], [3, 3], [0, 1], False, 2, [1, 1, 1], False), False)
sketch8.addGeometry(Part.LineSegment(V(0.6, -4.247892, 0), V(0.6, -1, 0)), False)
sketch8.addGeometry(Part.BSplineCurve([V(0.6, -1, 0), V(0, -3, 0), V(-0.6, -1, 0)], [3, 3], [0, 1], False, 2, [1, 1, 1], False), False)
sketch8.addGeometry(Part.LineSegment(V(-0.6, -1, 0), V(-0.6, -4.247892, 0)), False)
sketch8.addGeometry(Part.LineSegment(V(-0.6, -4.247892, 0), V(0.6, -4.247892, 0)), False)
sketch8.addConstraint(Sketcher.Constraint("Block", 1))
sketch8.addConstraint(Sketcher.Constraint("Block", 3))
sketch8.addConstraint(Sketcher.Constraint("Block", 5))
sketch8.addConstraint(Sketcher.Constraint("Coincident", 0, 1, 1, 1))
sketch8.addConstraint(Sketcher.Constraint("Coincident", 1, 2, 0, 2))
sketch8.addConstraint(Sketcher.Constraint("Coincident", 2, 1, 3, 2))
sketch8.addConstraint(Sketcher.Constraint("Coincident", 3, 1, 2, 2))
sketch8.addConstraint(Sketcher.Constraint("Coincident", 4, 2, 5, 1))
sketch8.addConstraint(Sketcher.Constraint("Coincident", 5, 2, 6, 1))
sketch8.addConstraint(Sketcher.Constraint("Coincident", 6, 2, 7, 1))
sketch8.addConstraint(Sketcher.Constraint("Coincident", 7, 2, 4, 1))
sketch8.addConstraint(Sketcher.Constraint("Vertical", 4))
sketch8.addConstraint(Sketcher.Constraint("Vertical", 6))
sketch8.addConstraint(Sketcher.Constraint("Horizontal", 7))
sketch8.addConstraint(Sketcher.Constraint("DistanceY", 4, 1, 4, 2, Q("3.247892 mm")))
pocket4 = body.newObject("PartDesign::Pocket", "Pocket003")
pocket4.Profile = sketch8
pocket4.Length = 0.5
pocket4.Reversed = True
doc.recompute()

chamfer = body.newObject("PartDesign::Chamfer", "Chamfer")
chamfer.Base = (pocket4, edges_at(pocket4, [
    (-4, 0.2, -2),
    (-3.75, 0, -2),
    (-4, -0.2, -2),
    (-4.25, 0, -2),
    (-2, 0.2, -2),
    (-1.75, 0, -2),
    (-2, -0.2, -2),
    (-2.25, 0, -2),
    (4, 0.2, -2),
    (4.25, 0, -2),
    (4, -0.2, -2),
    (3.75, 0, -2),
    (0, 0.2, -2),
    (0.25, 0, -2),
    (0, -0.2, -2),
    (-0.25, 0, -2),
]))
chamfer.Size = 0.1

doc.recompute()
